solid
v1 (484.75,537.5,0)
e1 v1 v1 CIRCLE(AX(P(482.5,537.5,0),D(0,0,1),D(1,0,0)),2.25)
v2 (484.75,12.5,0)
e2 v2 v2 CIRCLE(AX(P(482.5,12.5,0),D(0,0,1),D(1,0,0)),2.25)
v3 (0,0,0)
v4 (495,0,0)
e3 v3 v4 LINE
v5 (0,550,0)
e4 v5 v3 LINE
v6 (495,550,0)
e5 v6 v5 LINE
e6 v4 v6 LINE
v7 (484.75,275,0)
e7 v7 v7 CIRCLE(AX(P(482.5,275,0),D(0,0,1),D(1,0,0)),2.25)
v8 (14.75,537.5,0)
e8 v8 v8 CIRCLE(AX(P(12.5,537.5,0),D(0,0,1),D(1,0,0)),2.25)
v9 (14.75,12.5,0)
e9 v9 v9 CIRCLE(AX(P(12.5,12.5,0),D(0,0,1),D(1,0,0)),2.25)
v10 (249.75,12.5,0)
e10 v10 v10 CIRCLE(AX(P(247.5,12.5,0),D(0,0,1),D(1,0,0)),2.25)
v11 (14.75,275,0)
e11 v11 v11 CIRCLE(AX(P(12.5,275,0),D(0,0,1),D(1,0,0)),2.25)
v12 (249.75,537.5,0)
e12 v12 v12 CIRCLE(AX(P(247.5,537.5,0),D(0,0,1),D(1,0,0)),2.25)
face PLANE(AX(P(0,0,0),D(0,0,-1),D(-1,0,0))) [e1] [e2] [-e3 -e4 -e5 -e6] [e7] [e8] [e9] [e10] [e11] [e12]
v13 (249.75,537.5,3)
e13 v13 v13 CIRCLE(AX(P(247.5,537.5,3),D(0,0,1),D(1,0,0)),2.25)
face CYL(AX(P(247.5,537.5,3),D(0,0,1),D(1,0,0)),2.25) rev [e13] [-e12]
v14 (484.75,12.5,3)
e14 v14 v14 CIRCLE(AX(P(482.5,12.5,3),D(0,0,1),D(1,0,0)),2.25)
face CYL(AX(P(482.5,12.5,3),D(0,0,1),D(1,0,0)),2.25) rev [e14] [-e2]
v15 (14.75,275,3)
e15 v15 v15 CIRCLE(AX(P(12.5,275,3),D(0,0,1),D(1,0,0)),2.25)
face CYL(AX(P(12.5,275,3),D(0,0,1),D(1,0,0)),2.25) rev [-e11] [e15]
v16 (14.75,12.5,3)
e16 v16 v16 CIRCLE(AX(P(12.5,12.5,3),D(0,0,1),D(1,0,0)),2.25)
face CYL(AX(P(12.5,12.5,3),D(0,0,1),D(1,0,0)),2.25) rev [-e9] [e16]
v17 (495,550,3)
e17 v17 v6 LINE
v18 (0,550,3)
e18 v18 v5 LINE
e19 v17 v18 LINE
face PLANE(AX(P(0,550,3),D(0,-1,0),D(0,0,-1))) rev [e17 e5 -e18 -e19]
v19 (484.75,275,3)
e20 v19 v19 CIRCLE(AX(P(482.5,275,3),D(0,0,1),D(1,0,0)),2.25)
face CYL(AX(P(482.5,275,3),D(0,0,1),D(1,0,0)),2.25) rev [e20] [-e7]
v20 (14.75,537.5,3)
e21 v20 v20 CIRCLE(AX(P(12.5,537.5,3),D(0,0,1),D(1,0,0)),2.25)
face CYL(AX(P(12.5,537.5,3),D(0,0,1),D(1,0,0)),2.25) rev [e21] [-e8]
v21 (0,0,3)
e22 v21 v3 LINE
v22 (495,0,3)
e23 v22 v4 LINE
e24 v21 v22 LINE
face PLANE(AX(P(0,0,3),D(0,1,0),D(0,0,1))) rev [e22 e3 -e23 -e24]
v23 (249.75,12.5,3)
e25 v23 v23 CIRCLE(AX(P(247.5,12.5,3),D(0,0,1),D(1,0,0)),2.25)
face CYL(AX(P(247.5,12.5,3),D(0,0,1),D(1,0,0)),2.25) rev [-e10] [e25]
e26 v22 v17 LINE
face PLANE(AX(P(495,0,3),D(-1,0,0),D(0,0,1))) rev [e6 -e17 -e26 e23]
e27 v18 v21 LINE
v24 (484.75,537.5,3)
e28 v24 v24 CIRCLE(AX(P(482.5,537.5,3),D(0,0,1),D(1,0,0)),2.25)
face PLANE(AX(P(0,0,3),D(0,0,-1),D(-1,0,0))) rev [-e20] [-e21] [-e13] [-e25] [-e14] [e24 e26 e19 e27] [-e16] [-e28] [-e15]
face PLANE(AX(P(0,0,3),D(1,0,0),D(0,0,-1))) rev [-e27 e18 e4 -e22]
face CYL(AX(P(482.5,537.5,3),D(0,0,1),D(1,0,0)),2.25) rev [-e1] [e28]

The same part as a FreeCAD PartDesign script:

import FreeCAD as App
import Part
import Sketcher

V = App.Vector


def add_polygon(sketch, points):
    """Adds a closed chain of lines whose ends are joined by coincident constraints."""
    first, n = sketch.GeometryCount, len(points)
    for a, b in zip(points, points[1:] + points[:1]):
        sketch.addGeometry(Part.LineSegment(App.Vector(*a, 0), App.Vector(*b, 0)), False)
    for i in range(n):
        sketch.addConstraint(Sketcher.Constraint("Coincident", first + i, 2, first + (i + 1) % n, 1))

doc = App.newDocument("Part")
body = doc.addObject("PartDesign::Body", "Body")

sketch1 = body.newObject("Sketcher::SketchObject", "Sketch")
sketch1.AttachmentSupport = (doc.getObject("XY_Plane"), [""])
sketch1.MapMode = "FlatFace"
add_polygon(sketch1, [(0, 550), (0, 0), (495, 0), (495, 550)])
sketch1.addConstraint(Sketcher.Constraint("Vertical", 0))
sketch1.addConstraint(Sketcher.Constraint("Horizontal", 1))
sketch1.addConstraint(Sketcher.Constraint("Vertical", 2))
sketch1.addConstraint(Sketcher.Constraint("Horizontal", 3))
sketch1.addConstraint(Sketcher.Constraint("Coincident", 0, 2, -1, 1))
sketch1.addConstraint(Sketcher.Constraint("DistanceX", 1, 1, 1, 2, 495.0))
sketch1.addConstraint(Sketcher.Constraint("DistanceY", 0, 2, 0, 1, 550.0))
pad1 = body.newObject("PartDesign::Pad", "Pad")
pad1.Profile = sketch1
pad1.Length = 3

sketch2 = body.newObject("Sketcher::SketchObject", "Sketch001")
sketch2.AttachmentSupport = (doc.getObject("XY_Plane"), [""])
sketch2.MapMode = "FlatFace"
sketch2.AttachmentOffset = App.Placement(V(0, 0, 3), App.Rotation())
sketch2.addGeometry(Part.Circle(V(12.5, 275, 0), V(0, 0, 1), 2.2), False)
sketch2.addGeometry(Part.Circle(V(12.5, 537.5, 0), V(0, 0, 1), 2.2), False)
sketch2.addGeometry(Part.Circle(V(12.5, 12.5, 0), V(0, 0, 1), 2.2), False)
sketch2.addGeometry(Part.Circle(V(247.5, 12.5, 0), V(0, 0, 1), 2.2), False)
sketch2.addGeometry(Part.Circle(V(482.5, 12.5, 0), V(0, 0, 1), 2.2), False)
sketch2.addGeometry(Part.Circle(V(482.5, 275, 0), V(0, 0, 1), 2.2), False)
sketch2.addGeometry(Part.Circle(V(482.5, 537.5, 0), V(0, 0, 1), 2.2), False)
sketch2.addGeometry(Part.Circle(V(247.5, 537.5, 0), V(0, 0, 1), 2.2), False)
sketch2.addConstraint(Sketcher.Constraint("Equal", 0, 1))
sketch2.addConstraint(Sketcher.Constraint("Equal", 1, 2))
sketch2.addConstraint(Sketcher.Constraint("Equal", 2, 3))
sketch2.addConstraint(Sketcher.Constraint("Equal", 3, 4))
sketch2.addConstraint(Sketcher.Constraint("Equal", 4, 5))
sketch2.addConstraint(Sketcher.Constraint("Equal", 5, 6))
sketch2.addConstraint(Sketcher.Constraint("Equal", 6, 7))
sketch2.addConstraint(Sketcher.Constraint("Horizontal", 2, 3, 3, 3))
sketch2.addConstraint(Sketcher.Constraint("Horizontal", 3, 3, 4, 3))
sketch2.addConstraint(Sketcher.Constraint("Horizontal", 0, 3, 5, 3))
sketch2.addConstraint(Sketcher.Constraint("Horizontal", 1, 3, 6, 3))
sketch2.addConstraint(Sketcher.Constraint("Horizontal", 6, 3, 7, 3))
sketch2.addConstraint(Sketcher.Constraint("Vertical", 0, 3, 1, 3))
sketch2.addConstraint(Sketcher.Constraint("Vertical", 1, 3, 2, 3))
sketch2.addConstraint(Sketcher.Constraint("Vertical", 4, 3, 5, 3))
sketch2.addConstraint(Sketcher.Constraint("Vertical", 5, 3, 6, 3))
sketch2.addConstraint(Sketcher.Constraint("Vertical", 3, 3, 7, 3))
sketch2.addConstraint(Sketcher.Constraint("Diameter", 0, 4.5))
sketch2.addConstraint(Sketcher.Constraint("DistanceY", -1, 1, 0, 3, 275.0))
sketch2.addConstraint(Sketcher.Constraint("DistanceY", 2, 3, 1, 3, 525.0))
sketch2.addConstraint(Sketcher.Constraint("DistanceX", 2, 3, 3, 3, 235.0))
sketch2.addConstraint(Sketcher.Constraint("DistanceX", 3, 3, 4, 3, 235.0))
sketch2.addConstraint(Sketcher.Constraint("DistanceX", -1, 1, 0, 3, 12.5))
sketch2.addConstraint(Sketcher.Constraint("DistanceY", -1, 1, 1, 3, 537.5))
doc.recompute()
hole = body.newObject("PartDesign::Hole", "Hole")
hole.Profile = sketch2
hole.ThreadType = "None"
hole.Diameter = 4.5
hole.DepthType = "ThroughAll"

doc.recompute()
